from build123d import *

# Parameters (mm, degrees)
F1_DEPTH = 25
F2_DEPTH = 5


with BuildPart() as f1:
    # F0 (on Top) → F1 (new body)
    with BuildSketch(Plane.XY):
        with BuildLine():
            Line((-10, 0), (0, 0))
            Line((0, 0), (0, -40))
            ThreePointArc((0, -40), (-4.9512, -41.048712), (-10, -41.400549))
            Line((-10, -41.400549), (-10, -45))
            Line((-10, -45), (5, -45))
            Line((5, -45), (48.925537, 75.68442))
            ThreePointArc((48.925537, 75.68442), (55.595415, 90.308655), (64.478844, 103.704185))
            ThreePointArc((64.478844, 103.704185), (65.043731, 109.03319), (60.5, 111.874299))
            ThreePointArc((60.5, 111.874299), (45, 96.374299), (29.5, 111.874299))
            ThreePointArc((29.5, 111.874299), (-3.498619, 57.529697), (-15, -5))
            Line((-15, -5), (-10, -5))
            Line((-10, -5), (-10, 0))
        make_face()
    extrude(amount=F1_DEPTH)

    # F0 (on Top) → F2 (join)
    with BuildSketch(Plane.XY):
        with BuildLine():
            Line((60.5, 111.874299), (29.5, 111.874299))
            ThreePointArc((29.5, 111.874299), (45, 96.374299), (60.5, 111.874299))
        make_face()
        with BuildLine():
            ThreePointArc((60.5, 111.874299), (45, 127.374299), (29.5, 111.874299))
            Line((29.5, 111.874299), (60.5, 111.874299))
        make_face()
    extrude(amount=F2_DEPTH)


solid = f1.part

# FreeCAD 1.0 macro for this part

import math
import FreeCAD as App
import Part
import Sketcher
from FreeCAD import Vector
Q = App.Units.Quantity

doc = App.newDocument("Part")
body = doc.addObject("PartDesign::Body", "Body")

# Sketch on XY plane
sketch1 = body.newObject("Sketcher::SketchObject", "Sketch")
sketch1.AttachmentSupport = (doc.getObject("XY_Plane"), [""])
sketch1.MapMode = "FlatFace"
sketch1.addGeometry(Part.LineSegment(Vector(-10, 0, 0), Vector(0, 0, 0)), False)
sketch1.addGeometry(Part.LineSegment(Vector(0, 0, 0), Vector(0, -40, 0)), False)
sketch1.addGeometry(Part.ArcOfCircle(Part.Circle(Vector(-10, -5, 0), Vector(0, 0, 1), 36.4), math.radians(-90), math.radians(-74.05)), False)
sketch1.addGeometry(Part.LineSegment(Vector(-10, -41.4, 0), Vector(-10, -45, 0)), False)
sketch1.addGeometry(Part.LineSegment(Vector(-10, -45, 0), Vector(5, -45, 0)), False)
sketch1.addGeometry(Part.LineSegment(Vector(5, -45, 0), Vector(48.9, 75.7, 0)), False)
sketch1.addGeometry(Part.ArcOfCircle(Part.Circle(Vector(144.8, 40.8, 0), Vector(0, 0, 1), 102), math.radians(141.93), math.radians(160)), False)
sketch1.addGeometry(Part.ArcOfCircle(Part.Circle(Vector(60.5, 106.8, 0), Vector(0, 0, 1), 5.1), math.radians(-38), math.radians(90)), False)
sketch1.addGeometry(Part.ArcOfCircle(Part.Circle(Vector(45, 111.9, 0), Vector(0, 0, 1), 15.5), math.radians(180), math.radians(360)), False)
sketch1.addGeometry(Part.ArcOfCircle(Part.Circle(Vector(160.7, -5, 0), Vector(0, 0, 1), 175.7), math.radians(138), math.radians(180)), False)
sketch1.addGeometry(Part.LineSegment(Vector(-15, -5, 0), Vector(-10, -5, 0)), False)
sketch1.addGeometry(Part.LineSegment(Vector(-10, -5, 0), Vector(-10, 0, 0)), False)
sketch1.addConstraint(Sketcher.Constraint("Coincident", 0, 2, 1, 1))
sketch1.addConstraint(Sketcher.Constraint("Coincident", 1, 2, 2, 2))
sketch1.addConstraint(Sketcher.Constraint("Coincident", 2, 1, 3, 1))
sketch1.addConstraint(Sketcher.Constraint("Coincident", 3, 2, 4, 1))
sketch1.addConstraint(Sketcher.Constraint("Coincident", 4, 2, 5, 1))
sketch1.addConstraint(Sketcher.Constraint("Tangent", 5, 2, 6, 2))
sketch1.addConstraint(Sketcher.Constraint("Tangent", 6, 1, 7, 1))
sketch1.addConstraint(Sketcher.Constraint("Coincident", 7, 2, 8, 2))
sketch1.addConstraint(Sketcher.Constraint("Coincident", 8, 1, 9, 1))
sketch1.addConstraint(Sketcher.Constraint("Coincident", 9, 2, 10, 1))
sketch1.addConstraint(Sketcher.Constraint("Coincident", 10, 2, 11, 1))
sketch1.addConstraint(Sketcher.Constraint("Coincident", 11, 2, 0, 1))
sketch1.addConstraint(Sketcher.Constraint("Horizontal", 0))
sketch1.addConstraint(Sketcher.Constraint("Vertical", 1))
sketch1.addConstraint(Sketcher.Constraint("Vertical", 3))
sketch1.addConstraint(Sketcher.Constraint("Horizontal", 4))
sketch1.addConstraint(Sketcher.Constraint("Horizontal", 10))
sketch1.addConstraint(Sketcher.Constraint("Vertical", 11))
sketch1.addConstraint(Sketcher.Constraint("Coincident", 0, 2, -1, 1))
sketch1.addConstraint(Sketcher.Constraint("Horizontal", 8, 3, 7, 2))
sketch1.addConstraint(Sketcher.Constraint("Horizontal", 7, 2, 8, 1))
sketch1.addConstraint(Sketcher.Constraint("Vertical", 3, 2, 10, 2))
sketch1.addConstraint(Sketcher.Constraint("Equal", 10, 11))
sketch1.addConstraint(Sketcher.Constraint("Radius", 8, Q("15.5 mm")))
sketch1.addConstraint(Sketcher.Constraint("DistanceX", 0, 1, 0, 2, Q("10 mm")))
sketch1.addConstraint(Sketcher.Constraint("DistanceX", 4, 1, 4, 2, Q("15 mm")))
sketch1.addConstraint(Sketcher.Constraint("DistanceX", 10, 1, 10, 2, Q("5 mm")))
sketch1.addConstraint(Sketcher.Constraint("DistanceY", 1, 2, 1, 1, Q("40 mm")))
sketch1.addConstraint(Sketcher.Constraint("Angle", 5, Q("70 deg")))
sketch1.addConstraint(Sketcher.Constraint("DistanceX", -1, 1, 8, 3, Q("45 mm")))
sketch1.addConstraint(Sketcher.Constraint("DistanceY", 9, 3, -1, 1, Q("5.000001 mm")))
sketch1.addConstraint(Sketcher.Constraint("DistanceY", 3, 2, -1, 1, Q("45 mm")))
sketch1.addConstraint(Sketcher.Constraint("DistanceX", 8, 1, 7, 3, Q("31 mm")))
sketch1.addConstraint(Sketcher.Constraint("Radius", 2, Q("36.400501 mm")))
sketch1.addConstraint(Sketcher.Constraint("Radius", 6, Q("102.048087 mm")))
sketch1.addConstraint(Sketcher.Constraint("Radius", 7, Q("5.053905 mm")))
sketch1.addConstraint(Sketcher.Constraint("Radius", 9, Q("175.728673 mm")))
sketch1.addConstraint(Sketcher.Constraint("DistanceY", 3, 2, 3, 1, Q("3.599451 mm")))
pad1 = body.newObject("PartDesign::Pad", "Pad")
pad1.Profile = sketch1
pad1.Length = 25

# Sketch on XY plane
sketch2 = body.newObject("Sketcher::SketchObject", "Sketch001")
sketch2.AttachmentSupport = (doc.getObject("XY_Plane"), [""])
sketch2.MapMode = "FlatFace"
sketch2.addGeometry(Part.Circle(Vector(45, 112, 0), Vector(0, 0, 1), 16), False)
sketch2.addConstraint(Sketcher.Constraint("Diameter", 0, Q("31 mm")))
sketch2.addConstraint(Sketcher.Constraint("DistanceX", -1, 1, 0, 3, Q("45 mm")))
sketch2.addConstraint(Sketcher.Constraint("DistanceY", -1, 1, 0, 3, Q("111.874299 mm")))
pad2 = body.newObject("PartDesign::Pad", "Pad001")
pad2.Profile = sketch2
pad2.Length = 5

doc.recompute()
